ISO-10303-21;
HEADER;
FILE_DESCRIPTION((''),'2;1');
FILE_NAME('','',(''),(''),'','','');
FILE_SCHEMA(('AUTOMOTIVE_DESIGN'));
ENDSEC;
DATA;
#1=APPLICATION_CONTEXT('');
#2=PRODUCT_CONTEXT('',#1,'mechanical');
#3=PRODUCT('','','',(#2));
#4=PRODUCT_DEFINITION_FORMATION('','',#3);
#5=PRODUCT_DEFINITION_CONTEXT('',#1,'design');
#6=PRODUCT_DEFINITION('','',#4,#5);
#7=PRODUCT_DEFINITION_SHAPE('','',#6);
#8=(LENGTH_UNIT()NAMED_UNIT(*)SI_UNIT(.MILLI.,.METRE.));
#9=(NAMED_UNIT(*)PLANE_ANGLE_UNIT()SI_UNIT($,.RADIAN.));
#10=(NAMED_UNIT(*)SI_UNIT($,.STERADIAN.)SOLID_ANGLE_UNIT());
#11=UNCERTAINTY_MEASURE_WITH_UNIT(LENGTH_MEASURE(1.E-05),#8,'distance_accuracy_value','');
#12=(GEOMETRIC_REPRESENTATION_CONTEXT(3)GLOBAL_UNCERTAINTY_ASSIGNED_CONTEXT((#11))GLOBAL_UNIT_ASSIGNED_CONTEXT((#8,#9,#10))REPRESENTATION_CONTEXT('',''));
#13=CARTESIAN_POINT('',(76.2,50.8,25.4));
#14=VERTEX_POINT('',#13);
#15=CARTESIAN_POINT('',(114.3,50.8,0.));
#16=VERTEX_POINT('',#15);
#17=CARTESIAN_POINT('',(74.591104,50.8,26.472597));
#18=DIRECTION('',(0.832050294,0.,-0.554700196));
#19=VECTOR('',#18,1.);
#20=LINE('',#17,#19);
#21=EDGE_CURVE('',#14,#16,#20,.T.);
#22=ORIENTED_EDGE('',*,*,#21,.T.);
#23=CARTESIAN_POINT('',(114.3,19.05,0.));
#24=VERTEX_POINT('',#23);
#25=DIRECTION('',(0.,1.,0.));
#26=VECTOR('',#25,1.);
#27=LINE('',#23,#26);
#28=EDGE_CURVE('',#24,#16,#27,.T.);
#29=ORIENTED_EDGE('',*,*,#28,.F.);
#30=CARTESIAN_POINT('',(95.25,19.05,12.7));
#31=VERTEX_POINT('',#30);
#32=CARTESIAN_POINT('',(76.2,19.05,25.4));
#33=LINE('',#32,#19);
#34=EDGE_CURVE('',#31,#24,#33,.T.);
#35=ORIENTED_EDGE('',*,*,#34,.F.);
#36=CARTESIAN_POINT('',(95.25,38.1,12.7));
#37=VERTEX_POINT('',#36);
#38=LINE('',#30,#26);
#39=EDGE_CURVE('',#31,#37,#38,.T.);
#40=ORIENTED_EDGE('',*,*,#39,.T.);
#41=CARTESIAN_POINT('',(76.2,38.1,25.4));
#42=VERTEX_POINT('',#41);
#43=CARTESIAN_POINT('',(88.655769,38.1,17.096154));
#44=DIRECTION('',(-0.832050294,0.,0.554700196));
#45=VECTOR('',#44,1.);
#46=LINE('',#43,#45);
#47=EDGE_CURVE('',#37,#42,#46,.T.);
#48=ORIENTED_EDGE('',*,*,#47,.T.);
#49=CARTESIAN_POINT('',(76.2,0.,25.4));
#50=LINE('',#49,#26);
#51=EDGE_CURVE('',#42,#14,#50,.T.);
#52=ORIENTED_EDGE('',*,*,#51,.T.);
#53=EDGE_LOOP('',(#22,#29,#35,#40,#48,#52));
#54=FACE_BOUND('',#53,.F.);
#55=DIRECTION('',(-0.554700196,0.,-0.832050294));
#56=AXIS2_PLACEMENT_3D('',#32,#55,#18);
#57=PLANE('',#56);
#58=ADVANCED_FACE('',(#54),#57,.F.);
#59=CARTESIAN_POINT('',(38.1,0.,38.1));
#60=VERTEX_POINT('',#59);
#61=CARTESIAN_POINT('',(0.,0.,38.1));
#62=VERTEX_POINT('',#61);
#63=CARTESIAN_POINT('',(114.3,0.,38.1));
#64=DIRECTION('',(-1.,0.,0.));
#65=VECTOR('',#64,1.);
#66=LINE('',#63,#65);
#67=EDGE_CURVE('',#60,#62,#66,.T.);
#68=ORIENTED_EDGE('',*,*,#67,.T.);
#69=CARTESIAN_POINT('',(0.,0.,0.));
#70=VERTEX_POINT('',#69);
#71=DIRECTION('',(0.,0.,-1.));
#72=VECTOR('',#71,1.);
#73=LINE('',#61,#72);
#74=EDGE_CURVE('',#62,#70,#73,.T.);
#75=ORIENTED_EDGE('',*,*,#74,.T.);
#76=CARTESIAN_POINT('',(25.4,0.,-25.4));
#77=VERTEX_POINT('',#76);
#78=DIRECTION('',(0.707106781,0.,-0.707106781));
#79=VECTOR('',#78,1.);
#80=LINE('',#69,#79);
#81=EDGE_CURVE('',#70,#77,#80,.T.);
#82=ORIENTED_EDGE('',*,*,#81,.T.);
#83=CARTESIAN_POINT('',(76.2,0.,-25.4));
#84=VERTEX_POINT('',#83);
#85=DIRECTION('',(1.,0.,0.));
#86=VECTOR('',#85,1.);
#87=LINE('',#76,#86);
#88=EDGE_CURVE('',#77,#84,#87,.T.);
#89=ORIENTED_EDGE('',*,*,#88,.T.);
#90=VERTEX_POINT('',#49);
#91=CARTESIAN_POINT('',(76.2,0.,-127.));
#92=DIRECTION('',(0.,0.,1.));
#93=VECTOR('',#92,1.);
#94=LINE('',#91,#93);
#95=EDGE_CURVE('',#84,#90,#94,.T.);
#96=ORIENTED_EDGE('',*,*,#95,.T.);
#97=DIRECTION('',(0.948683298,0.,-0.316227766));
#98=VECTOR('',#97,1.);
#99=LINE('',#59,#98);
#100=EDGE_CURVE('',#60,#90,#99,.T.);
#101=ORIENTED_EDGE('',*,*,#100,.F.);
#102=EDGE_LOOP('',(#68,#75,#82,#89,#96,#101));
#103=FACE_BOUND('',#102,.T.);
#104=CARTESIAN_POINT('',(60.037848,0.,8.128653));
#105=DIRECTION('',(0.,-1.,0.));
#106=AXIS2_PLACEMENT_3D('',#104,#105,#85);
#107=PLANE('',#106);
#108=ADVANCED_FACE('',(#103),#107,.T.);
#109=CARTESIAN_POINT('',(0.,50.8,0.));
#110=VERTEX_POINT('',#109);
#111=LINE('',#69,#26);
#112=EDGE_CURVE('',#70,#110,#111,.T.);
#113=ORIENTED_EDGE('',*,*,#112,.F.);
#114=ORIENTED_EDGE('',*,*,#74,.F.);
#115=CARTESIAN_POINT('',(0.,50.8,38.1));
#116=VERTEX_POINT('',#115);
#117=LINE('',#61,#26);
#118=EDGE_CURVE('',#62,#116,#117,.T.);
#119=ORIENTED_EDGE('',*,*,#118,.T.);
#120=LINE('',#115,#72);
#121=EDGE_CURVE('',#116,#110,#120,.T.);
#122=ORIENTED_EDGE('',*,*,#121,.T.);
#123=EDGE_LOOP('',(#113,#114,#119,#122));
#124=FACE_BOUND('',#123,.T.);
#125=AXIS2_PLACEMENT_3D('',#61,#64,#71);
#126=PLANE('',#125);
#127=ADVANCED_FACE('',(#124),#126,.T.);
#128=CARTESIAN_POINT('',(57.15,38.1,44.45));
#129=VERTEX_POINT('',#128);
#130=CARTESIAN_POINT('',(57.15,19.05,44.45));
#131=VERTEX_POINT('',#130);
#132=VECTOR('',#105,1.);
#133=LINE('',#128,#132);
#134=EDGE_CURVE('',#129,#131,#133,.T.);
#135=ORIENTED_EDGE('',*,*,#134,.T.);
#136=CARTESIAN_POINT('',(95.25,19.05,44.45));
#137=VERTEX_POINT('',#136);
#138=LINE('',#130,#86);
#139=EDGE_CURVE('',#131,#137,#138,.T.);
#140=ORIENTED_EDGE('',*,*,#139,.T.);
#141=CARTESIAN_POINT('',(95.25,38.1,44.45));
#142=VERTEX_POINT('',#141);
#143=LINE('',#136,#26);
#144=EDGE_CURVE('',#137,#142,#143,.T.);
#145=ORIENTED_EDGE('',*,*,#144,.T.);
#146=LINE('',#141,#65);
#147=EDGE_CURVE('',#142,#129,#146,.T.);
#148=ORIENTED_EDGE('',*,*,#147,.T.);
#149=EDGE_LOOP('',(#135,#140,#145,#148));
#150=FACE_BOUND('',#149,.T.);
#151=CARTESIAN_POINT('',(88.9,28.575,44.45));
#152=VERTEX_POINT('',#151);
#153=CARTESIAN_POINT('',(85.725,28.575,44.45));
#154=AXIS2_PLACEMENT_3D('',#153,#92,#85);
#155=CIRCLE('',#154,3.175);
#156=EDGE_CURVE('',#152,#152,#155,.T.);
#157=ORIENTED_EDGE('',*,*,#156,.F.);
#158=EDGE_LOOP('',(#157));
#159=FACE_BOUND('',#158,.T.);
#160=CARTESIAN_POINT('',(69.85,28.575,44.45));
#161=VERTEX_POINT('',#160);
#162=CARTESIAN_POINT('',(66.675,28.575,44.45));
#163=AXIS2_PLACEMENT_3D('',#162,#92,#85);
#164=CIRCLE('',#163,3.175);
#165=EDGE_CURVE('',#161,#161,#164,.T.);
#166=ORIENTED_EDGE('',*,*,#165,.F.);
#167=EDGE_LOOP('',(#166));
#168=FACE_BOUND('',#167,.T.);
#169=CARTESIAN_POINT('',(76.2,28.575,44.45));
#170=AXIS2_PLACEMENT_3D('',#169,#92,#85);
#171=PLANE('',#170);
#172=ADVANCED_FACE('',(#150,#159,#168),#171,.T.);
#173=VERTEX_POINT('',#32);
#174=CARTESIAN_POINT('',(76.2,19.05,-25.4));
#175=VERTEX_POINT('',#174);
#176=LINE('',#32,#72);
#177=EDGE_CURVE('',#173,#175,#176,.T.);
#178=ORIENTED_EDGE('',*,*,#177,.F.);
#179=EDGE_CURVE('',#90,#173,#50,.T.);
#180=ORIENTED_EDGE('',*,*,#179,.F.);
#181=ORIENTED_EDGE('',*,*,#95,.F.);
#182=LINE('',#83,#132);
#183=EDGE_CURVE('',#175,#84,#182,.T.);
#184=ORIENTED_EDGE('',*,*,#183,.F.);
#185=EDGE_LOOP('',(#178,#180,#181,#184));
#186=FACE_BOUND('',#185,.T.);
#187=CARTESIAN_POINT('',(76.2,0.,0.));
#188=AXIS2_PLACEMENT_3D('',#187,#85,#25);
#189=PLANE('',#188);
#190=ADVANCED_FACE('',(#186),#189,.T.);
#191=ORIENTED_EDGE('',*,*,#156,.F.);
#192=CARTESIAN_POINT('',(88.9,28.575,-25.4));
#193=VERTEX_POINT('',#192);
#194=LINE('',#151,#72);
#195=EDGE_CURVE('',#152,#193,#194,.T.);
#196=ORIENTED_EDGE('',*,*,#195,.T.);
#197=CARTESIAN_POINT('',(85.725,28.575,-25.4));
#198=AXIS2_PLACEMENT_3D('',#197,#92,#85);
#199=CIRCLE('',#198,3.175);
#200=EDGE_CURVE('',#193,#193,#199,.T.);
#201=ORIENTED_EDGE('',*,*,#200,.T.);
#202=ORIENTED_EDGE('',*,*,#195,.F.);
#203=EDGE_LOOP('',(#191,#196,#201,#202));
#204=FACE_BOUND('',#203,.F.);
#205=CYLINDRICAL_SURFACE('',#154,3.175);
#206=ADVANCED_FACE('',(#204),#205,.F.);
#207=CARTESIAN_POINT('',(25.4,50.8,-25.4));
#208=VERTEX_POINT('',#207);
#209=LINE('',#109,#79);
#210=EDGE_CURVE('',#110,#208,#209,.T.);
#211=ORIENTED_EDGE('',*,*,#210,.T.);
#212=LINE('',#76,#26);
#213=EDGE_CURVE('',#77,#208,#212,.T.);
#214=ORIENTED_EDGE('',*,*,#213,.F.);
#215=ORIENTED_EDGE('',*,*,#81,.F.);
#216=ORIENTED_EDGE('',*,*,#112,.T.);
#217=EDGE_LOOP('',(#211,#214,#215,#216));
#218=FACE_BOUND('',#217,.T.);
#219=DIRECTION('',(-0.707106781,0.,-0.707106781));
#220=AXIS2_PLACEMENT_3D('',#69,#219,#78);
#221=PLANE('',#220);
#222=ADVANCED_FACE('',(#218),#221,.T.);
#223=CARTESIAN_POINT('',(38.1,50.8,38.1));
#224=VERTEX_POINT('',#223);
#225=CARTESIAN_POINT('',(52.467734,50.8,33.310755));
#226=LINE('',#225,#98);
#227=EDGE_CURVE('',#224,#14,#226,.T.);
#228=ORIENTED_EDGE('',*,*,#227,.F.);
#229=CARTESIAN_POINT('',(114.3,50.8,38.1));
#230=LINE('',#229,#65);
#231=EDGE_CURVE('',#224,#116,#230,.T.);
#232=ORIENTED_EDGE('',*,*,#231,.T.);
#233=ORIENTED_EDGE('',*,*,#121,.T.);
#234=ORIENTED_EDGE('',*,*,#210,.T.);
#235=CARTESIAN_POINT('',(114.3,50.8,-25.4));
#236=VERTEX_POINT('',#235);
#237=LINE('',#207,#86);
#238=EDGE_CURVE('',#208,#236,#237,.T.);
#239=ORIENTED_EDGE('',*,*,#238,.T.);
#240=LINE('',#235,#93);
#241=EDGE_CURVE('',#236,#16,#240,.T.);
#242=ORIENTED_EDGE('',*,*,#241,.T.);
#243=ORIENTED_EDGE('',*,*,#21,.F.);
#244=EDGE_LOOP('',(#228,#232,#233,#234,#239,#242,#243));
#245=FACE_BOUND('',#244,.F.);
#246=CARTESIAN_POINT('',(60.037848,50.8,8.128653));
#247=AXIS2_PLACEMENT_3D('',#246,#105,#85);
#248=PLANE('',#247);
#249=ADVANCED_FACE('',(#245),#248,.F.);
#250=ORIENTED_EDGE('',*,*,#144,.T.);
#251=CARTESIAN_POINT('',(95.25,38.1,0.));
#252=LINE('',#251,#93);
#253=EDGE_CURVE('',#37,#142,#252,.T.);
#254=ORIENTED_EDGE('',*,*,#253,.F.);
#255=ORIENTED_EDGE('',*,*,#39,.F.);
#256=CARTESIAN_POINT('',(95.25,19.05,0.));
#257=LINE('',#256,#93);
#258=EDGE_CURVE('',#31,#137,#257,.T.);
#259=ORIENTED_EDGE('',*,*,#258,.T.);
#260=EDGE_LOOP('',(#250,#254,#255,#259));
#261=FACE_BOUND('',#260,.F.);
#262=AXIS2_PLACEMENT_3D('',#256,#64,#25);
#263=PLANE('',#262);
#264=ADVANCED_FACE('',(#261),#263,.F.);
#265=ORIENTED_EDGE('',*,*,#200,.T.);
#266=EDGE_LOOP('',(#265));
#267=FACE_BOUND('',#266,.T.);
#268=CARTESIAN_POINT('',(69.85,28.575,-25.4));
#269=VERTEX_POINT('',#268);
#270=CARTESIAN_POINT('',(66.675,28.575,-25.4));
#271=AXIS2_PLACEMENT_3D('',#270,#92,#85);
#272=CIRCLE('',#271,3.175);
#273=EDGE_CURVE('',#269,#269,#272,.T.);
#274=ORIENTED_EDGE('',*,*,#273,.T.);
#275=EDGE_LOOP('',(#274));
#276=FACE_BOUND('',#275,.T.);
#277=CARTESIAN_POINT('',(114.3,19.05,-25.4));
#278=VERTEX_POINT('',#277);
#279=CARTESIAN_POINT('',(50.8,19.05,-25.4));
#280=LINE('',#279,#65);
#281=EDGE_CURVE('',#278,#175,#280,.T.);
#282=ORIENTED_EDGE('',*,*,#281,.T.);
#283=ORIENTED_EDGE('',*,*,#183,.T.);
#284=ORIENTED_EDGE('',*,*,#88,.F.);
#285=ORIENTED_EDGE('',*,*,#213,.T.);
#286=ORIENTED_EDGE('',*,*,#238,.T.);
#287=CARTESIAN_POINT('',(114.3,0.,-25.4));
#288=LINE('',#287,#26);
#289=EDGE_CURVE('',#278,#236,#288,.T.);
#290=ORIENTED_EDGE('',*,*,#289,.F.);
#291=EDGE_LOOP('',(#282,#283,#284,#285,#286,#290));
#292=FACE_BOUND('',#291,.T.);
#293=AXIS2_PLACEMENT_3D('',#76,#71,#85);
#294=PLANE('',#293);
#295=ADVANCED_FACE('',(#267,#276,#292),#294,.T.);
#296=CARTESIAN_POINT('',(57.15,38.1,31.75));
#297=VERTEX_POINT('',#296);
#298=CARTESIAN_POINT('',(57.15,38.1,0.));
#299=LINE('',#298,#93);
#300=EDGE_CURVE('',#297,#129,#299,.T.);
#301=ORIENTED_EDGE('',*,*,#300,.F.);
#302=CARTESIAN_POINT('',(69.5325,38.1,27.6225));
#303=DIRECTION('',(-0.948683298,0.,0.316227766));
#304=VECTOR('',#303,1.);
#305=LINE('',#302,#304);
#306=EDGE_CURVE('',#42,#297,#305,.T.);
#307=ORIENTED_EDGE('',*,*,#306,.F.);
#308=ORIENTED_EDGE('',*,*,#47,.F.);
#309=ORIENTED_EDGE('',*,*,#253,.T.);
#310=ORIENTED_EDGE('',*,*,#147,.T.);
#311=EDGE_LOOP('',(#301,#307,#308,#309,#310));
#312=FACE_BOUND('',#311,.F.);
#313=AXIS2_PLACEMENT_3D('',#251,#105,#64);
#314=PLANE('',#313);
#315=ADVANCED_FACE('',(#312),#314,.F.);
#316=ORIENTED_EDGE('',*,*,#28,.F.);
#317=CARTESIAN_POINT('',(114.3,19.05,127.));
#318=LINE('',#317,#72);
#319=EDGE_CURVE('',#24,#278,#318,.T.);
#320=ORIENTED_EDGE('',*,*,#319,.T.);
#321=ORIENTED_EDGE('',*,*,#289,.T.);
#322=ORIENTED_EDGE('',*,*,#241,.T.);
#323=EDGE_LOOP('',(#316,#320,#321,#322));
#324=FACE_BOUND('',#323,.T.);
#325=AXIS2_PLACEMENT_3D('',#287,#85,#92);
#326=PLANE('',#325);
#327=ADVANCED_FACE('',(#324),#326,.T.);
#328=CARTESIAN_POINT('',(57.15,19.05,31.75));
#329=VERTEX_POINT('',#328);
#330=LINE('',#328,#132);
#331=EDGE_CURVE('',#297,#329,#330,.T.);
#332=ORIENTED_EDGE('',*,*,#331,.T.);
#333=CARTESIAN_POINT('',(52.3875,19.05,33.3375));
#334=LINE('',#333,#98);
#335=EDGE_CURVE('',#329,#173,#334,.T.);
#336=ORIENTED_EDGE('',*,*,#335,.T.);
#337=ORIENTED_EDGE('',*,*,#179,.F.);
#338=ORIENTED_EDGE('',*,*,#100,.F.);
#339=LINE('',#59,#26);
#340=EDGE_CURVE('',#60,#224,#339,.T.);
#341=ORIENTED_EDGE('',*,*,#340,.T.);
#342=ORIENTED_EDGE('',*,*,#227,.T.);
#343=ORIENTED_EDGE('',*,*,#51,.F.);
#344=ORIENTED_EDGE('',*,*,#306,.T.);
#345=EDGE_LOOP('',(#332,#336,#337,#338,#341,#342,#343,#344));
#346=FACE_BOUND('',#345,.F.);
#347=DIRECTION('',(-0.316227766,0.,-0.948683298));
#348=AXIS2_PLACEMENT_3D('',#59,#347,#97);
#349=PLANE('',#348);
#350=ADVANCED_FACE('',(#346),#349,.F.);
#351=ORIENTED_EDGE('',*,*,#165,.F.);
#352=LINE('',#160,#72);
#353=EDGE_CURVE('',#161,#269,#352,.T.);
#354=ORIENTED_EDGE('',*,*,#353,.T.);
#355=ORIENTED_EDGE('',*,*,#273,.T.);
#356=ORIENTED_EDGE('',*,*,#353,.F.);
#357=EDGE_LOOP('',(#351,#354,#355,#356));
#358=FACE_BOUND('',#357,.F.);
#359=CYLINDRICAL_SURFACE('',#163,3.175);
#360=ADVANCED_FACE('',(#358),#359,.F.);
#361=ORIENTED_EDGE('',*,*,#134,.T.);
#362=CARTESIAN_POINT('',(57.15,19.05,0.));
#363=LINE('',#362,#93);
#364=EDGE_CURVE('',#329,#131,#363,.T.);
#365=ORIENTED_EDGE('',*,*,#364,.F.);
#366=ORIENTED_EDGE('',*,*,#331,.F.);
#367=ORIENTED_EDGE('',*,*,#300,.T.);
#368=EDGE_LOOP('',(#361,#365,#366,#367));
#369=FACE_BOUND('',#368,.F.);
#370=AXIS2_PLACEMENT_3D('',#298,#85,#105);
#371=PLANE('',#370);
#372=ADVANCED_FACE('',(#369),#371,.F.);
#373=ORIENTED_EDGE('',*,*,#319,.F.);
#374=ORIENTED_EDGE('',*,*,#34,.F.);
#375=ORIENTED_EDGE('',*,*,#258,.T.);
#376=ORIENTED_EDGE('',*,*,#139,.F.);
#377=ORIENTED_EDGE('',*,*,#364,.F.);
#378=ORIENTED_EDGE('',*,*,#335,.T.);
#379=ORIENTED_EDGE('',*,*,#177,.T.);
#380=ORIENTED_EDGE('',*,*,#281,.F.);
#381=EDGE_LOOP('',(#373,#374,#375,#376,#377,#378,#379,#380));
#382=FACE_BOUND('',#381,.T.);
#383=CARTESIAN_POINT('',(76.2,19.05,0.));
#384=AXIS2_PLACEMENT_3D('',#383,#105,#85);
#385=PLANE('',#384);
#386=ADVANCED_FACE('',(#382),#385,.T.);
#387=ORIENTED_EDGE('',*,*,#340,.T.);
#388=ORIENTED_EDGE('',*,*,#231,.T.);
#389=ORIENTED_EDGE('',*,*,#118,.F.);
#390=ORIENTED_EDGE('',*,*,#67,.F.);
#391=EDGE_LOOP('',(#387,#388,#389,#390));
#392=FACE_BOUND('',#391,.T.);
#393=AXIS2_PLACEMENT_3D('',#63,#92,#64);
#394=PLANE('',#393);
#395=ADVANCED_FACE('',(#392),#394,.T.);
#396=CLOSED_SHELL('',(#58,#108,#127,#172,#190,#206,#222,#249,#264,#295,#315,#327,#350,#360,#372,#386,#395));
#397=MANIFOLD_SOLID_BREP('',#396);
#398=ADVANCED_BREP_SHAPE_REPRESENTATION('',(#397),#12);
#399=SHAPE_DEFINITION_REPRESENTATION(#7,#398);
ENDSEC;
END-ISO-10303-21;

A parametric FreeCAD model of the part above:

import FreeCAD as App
import Part
import Sketcher
Q = App.Units.Quantity

doc = App.newDocument("Part")
body = doc.addObject("PartDesign::Body", "Body")

# Sketch on XZ plane
sketch1 = body.newObject("Sketcher::SketchObject", "Sketch")
sketch1.AttachmentSupport = (doc.getObject("XZ_Plane"), [""])
sketch1.MapMode = "FlatFace"
sketch1.addGeometry([
    Part.LineSegment(App.Vector(0, 38, 0), App.Vector(0, 0, 0)),  # 0
    Part.LineSegment(App.Vector(0, 0, 0), App.Vector(25, -25, 0)),  # 1
    Part.LineSegment(App.Vector(25, -25, 0), App.Vector(114, -25, 0)),  # 2
    Part.LineSegment(App.Vector(114, -25, 0), App.Vector(114, 38, 0)),  # 3
    Part.LineSegment(App.Vector(114, 38, 0), App.Vector(0, 38, 0)),  # 4
], False)
sketch1.addConstraint([
    Sketcher.Constraint("Coincident", 0, 2, 1, 1),
    Sketcher.Constraint("Coincident", 1, 2, 2, 1),
    Sketcher.Constraint("Coincident", 2, 2, 3, 1),
    Sketcher.Constraint("Coincident", 3, 2, 4, 1),
    Sketcher.Constraint("Coincident", 4, 2, 0, 1),
    Sketcher.Constraint("Vertical", 0),
    Sketcher.Constraint("Horizontal", 2),
    Sketcher.Constraint("Vertical", 3),
    Sketcher.Constraint("Horizontal", 4),
    Sketcher.Constraint("Coincident", 0, 2, -1, 1),
    Sketcher.Constraint("DistanceX", 2, 1, 2, 2, Q("3.5 in")),
    Sketcher.Constraint("DistanceX", 4, 2, 4, 1, Q("4.5 in")),
    Sketcher.Constraint("DistanceY", 0, 2, 0, 1, Q("1.5 in")),
    Sketcher.Constraint("DistanceY", 3, 1, 3, 2, Q("2.5 in")),
])
pad1 = body.newObject("PartDesign::Pad", "Pad")
pad1.Profile = sketch1
pad1.Length = Q("2 in")
pad1.Reversed = True

# Sketch on XY plane
sketch2 = body.newObject("Sketcher::SketchObject", "Sketch001")
sketch2.AttachmentSupport = (doc.getObject("XY_Plane"), [""])
sketch2.MapMode = "FlatFace"
sketch2.addGeometry([
    Part.LineSegment(App.Vector(76, 19, 0), App.Vector(76, 0, 0)),
    Part.LineSegment(App.Vector(76, 0, 0), App.Vector(114, 0, 0)),
    Part.LineSegment(App.Vector(114, 0, 0), App.Vector(114, 19, 0)),
    Part.LineSegment(App.Vector(114, 19, 0), App.Vector(76, 19, 0)),
], False)
sketch2.addConstraint([
    Sketcher.Constraint("Coincident", 0, 2, 1, 1),
    Sketcher.Constraint("Coincident", 1, 2, 2, 1),
    Sketcher.Constraint("Coincident", 2, 2, 3, 1),
    Sketcher.Constraint("Coincident", 3, 2, 0, 1),
    Sketcher.Constraint("Vertical", 0),
    Sketcher.Constraint("Horizontal", 1),
    Sketcher.Constraint("Vertical", 2),
    Sketcher.Constraint("Horizontal", 3),
    Sketcher.Constraint("PointOnObject", 0, 2, -1),
    Sketcher.Constraint("DistanceX", 1, 1, 1, 2, Q("1.5 in")),
    Sketcher.Constraint("DistanceX", -1, 1, 0, 2, Q("3 in")),
    Sketcher.Constraint("DistanceY", 0, 2, 0, 1, Q("0.75 in")),
])
pocket1 = body.newObject("PartDesign::Pocket", "Pocket")
pocket1.Profile = sketch2
pocket1.Length = Q("10 in")
pocket1.Midplane = True

# Sketch on XZ plane
sketch3 = body.newObject("Sketcher::SketchObject", "Sketch002")
sketch3.AttachmentSupport = (doc.getObject("XZ_Plane"), [""])
sketch3.MapMode = "FlatFace"
sketch3.addGeometry([
    Part.LineSegment(App.Vector(76, 25, 0), App.Vector(76, 38, 0)),
    Part.LineSegment(App.Vector(76, 38, 0), App.Vector(38, 38, 0)),
    Part.LineSegment(App.Vector(38, 38, 0), App.Vector(76, 25, 0)),
], False)
sketch3.addConstraint([
    Sketcher.Constraint("Coincident", 0, 2, 1, 1),
    Sketcher.Constraint("Coincident", 1, 2, 2, 1),
    Sketcher.Constraint("Coincident", 2, 2, 0, 1),
    Sketcher.Constraint("Vertical", 0),
    Sketcher.Constraint("Horizontal", 1),
    Sketcher.Constraint("DistanceX", 1, 2, 1, 1, Q("1.5 in")),
    Sketcher.Constraint("DistanceY", 0, 1, 0, 2, Q("0.5 in")),
    Sketcher.Constraint("DistanceX", -1, 1, 0, 2, Q("3 in")),
    Sketcher.Constraint("DistanceY", -1, 1, 2, 2, Q("1 in")),
])
pocket2 = body.newObject("PartDesign::Pocket", "Pocket001")
pocket2.Profile = sketch3
pocket2.Type = "ThroughAll"

# Sketch on XZ plane
sketch4 = body.newObject("Sketcher::SketchObject", "Sketch003")
sketch4.AttachmentSupport = (doc.getObject("XZ_Plane"), [""])
sketch4.MapMode = "FlatFace"
sketch4.AttachmentOffset = App.Placement(App.Vector(0, 0, -0.75 * 25.4), App.Rotation())
sketch4.addGeometry([
    Part.LineSegment(App.Vector(76, 25, 0), App.Vector(114, 0, 0)),
    Part.LineSegment(App.Vector(114, 0, 0), App.Vector(114, 38, 0)),
    Part.LineSegment(App.Vector(114, 38, 0), App.Vector(76, 38, 0)),
    Part.LineSegment(App.Vector(76, 38, 0), App.Vector(76, 25, 0)),
], False)
sketch4.addConstraint([
    Sketcher.Constraint("Coincident", 0, 2, 1, 1),
    Sketcher.Constraint("Coincident", 1, 2, 2, 1),
    Sketcher.Constraint("Coincident", 2, 2, 3, 1),
    Sketcher.Constraint("Coincident", 3, 2, 0, 1),
    Sketcher.Constraint("Vertical", 1),
    Sketcher.Constraint("Horizontal", 2),
    Sketcher.Constraint("Vertical", 3),
    Sketcher.Constraint("PointOnObject", 0, 2, -1),
    Sketcher.Constraint("Equal", 2, 1),
    Sketcher.Constraint("DistanceX", 2, 2, 2, 1, Q("1.5 in")),
    Sketcher.Constraint("DistanceY", 3, 2, 3, 1, Q("0.5 in")),
    Sketcher.Constraint("DistanceX", -1, 1, 2, 2, Q("3 in")),
])
pocket3 = body.newObject("PartDesign::Pocket", "Pocket002")
pocket3.Profile = sketch4
pocket3.Type = "ThroughAll"

# Sketch on XY plane
sketch5 = body.newObject("Sketcher::SketchObject", "Sketch004")
sketch5.AttachmentSupport = (doc.getObject("XY_Plane"), [""])
sketch5.MapMode = "FlatFace"
sketch5.addGeometry([
    Part.LineSegment(App.Vector(57, 19, 0), App.Vector(95, 19, 0)),
    Part.LineSegment(App.Vector(95, 19, 0), App.Vector(95, 38, 0)),
    Part.LineSegment(App.Vector(95, 38, 0), App.Vector(57, 38, 0)),
    Part.LineSegment(App.Vector(57, 38, 0), App.Vector(57, 19, 0)),
], False)
sketch5.addConstraint([
    Sketcher.Constraint("Coincident", 0, 2, 1, 1),
    Sketcher.Constraint("Coincident", 1, 2, 2, 1),
    Sketcher.Constraint("Coincident", 2, 2, 3, 1),
    Sketcher.Constraint("Coincident", 3, 2, 0, 1),
    Sketcher.Constraint("Horizontal", 0),
    Sketcher.Constraint("Vertical", 1),
    Sketcher.Constraint("Horizontal", 2),
    Sketcher.Constraint("Vertical", 3),
    Sketcher.Constraint("DistanceX", 0, 1, 0, 2, Q("1.5 in")),
    Sketcher.Constraint("DistanceY", 1, 1, 1, 2, Q("0.75 in")),
    Sketcher.Constraint("DistanceY", -1, 1, 1, 2, Q("1.5 in")),
    Sketcher.Constraint("DistanceX", -1, 1, 0, 2, Q("3.75 in")),
])
pad2 = body.newObject("PartDesign::Pad", "Pad001")
pad2.Profile = sketch5
pad2.Length = Q("1.75 in")

# Sketch on XY plane
sketch6 = body.newObject("Sketcher::SketchObject", "Sketch005")
sketch6.AttachmentSupport = (doc.getObject("XY_Plane"), [""])
sketch6.MapMode = "FlatFace"
sketch6.AttachmentOffset = App.Placement(App.Vector(0, 0, 1.75 * 25.4), App.Rotation())
sketch6.addGeometry([
    Part.Circle(App.Vector(66.7, 28.6, 0), App.Vector(0, 0, 1), 3.2),
    Part.Circle(App.Vector(85.7, 28.6, 0), App.Vector(0, 0, 1), 3.2),
], False)
sketch6.addConstraint([
    Sketcher.Constraint("Equal", 0, 1),
    Sketcher.Constraint("Horizontal", 0, 3, 1, 3),
    Sketcher.Constraint("Diameter", 0, Q("0.25 in")),
    Sketcher.Constraint("DistanceX", 0, 3, 1, 3, Q("0.75 in")),
    Sketcher.Constraint("DistanceX", -1, 1, 0, 3, Q("2.625 in")),
    Sketcher.Constraint("DistanceY", -1, 1, 0, 3, Q("1.125 in")),
])
pocket4 = body.newObject("PartDesign::Pocket", "Pocket003")
pocket4.Profile = sketch6
pocket4.Type = "ThroughAll"

doc.recompute()
